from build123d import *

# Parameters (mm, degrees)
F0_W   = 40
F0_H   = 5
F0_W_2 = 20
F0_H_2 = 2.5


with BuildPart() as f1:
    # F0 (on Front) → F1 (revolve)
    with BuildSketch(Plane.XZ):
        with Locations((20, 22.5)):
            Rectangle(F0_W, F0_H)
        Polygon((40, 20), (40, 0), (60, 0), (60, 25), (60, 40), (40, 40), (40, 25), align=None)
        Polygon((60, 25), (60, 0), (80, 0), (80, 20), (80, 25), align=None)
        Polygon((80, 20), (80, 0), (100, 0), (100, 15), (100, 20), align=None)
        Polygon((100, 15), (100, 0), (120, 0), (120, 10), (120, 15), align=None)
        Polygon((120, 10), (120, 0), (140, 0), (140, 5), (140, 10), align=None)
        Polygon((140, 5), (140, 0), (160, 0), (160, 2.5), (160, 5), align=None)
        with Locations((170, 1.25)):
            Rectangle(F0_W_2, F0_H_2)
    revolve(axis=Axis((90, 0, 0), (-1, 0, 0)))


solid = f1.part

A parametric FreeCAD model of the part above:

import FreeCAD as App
import Part
import Sketcher

doc = App.newDocument("Part")
body = doc.addObject("PartDesign::Body", "Body")

# Sketch on XZ plane
sketch1 = body.newObject("Sketcher::SketchObject", "Sketch")
sketch1.AttachmentSupport = (doc.getObject("XZ_Plane"), [""])
sketch1.MapMode = "FlatFace"
sketch1.addGeometry(Part.LineSegment(App.Vector(0, 25, 0), App.Vector(0, 20, 0)), False)
sketch1.addGeometry(Part.LineSegment(App.Vector(0, 20, 0), App.Vector(40, 20, 0)), False)
sketch1.addGeometry(Part.LineSegment(App.Vector(40, 20, 0), App.Vector(40, 0, 0)), False)
sketch1.addGeometry(Part.LineSegment(App.Vector(40, 0, 0), App.Vector(180, 0, 0)), False)
sketch1.addGeometry(Part.LineSegment(App.Vector(180, 0, 0), App.Vector(180, 2.5, 0)), False)
sketch1.addGeometry(Part.LineSegment(App.Vector(180, 2.5, 0), App.Vector(160, 2.5, 0)), False)
sketch1.addGeometry(Part.LineSegment(App.Vector(160, 2.5, 0), App.Vector(160, 5, 0)), False)
sketch1.addGeometry(Part.LineSegment(App.Vector(160, 5, 0), App.Vector(140, 5, 0)), False)
sketch1.addGeometry(Part.LineSegment(App.Vector(140, 5, 0), App.Vector(140, 10, 0)), False)
sketch1.addGeometry(Part.LineSegment(App.Vector(140, 10, 0), App.Vector(120, 10, 0)), False)
sketch1.addGeometry(Part.LineSegment(App.Vector(120, 10, 0), App.Vector(120, 15, 0)), False)
sketch1.addGeometry(Part.LineSegment(App.Vector(120, 15, 0), App.Vector(100, 15, 0)), False)
sketch1.addGeometry(Part.LineSegment(App.Vector(100, 15, 0), App.Vector(100, 20, 0)), False)
sketch1.addGeometry(Part.LineSegment(App.Vector(100, 20, 0), App.Vector(80, 20, 0)), False)
sketch1.addGeometry(Part.LineSegment(App.Vector(80, 20, 0), App.Vector(80, 25, 0)), False)
sketch1.addGeometry(Part.LineSegment(App.Vector(80, 25, 0), App.Vector(60, 25, 0)), False)
sketch1.addGeometry(Part.LineSegment(App.Vector(60, 25, 0), App.Vector(60, 40, 0)), False)
sketch1.addGeometry(Part.LineSegment(App.Vector(60, 40, 0), App.Vector(40, 40, 0)), False)
sketch1.addGeometry(Part.LineSegment(App.Vector(40, 40, 0), App.Vector(40, 25, 0)), False)
sketch1.addGeometry(Part.LineSegment(App.Vector(40, 25, 0), App.Vector(0, 25, 0)), False)
sketch1.addConstraint(Sketcher.Constraint("Coincident", 0, 2, 1, 1))
sketch1.addConstraint(Sketcher.Constraint("Coincident", 1, 2, 2, 1))
sketch1.addConstraint(Sketcher.Constraint("Coincident", 2, 2, 3, 1))
sketch1.addConstraint(Sketcher.Constraint("Coincident", 3, 2, 4, 1))
sketch1.addConstraint(Sketcher.Constraint("Coincident", 4, 2, 5, 1))
sketch1.addConstraint(Sketcher.Constraint("Coincident", 5, 2, 6, 1))
sketch1.addConstraint(Sketcher.Constraint("Coincident", 6, 2, 7, 1))
sketch1.addConstraint(Sketcher.Constraint("Coincident", 7, 2, 8, 1))
sketch1.addConstraint(Sketcher.Constraint("Coincident", 8, 2, 9, 1))
sketch1.addConstraint(Sketcher.Constraint("Coincident", 9, 2, 10, 1))
sketch1.addConstraint(Sketcher.Constraint("Coincident", 10, 2, 11, 1))
sketch1.addConstraint(Sketcher.Constraint("Coincident", 11, 2, 12, 1))
sketch1.addConstraint(Sketcher.Constraint("Coincident", 12, 2, 13, 1))
sketch1.addConstraint(Sketcher.Constraint("Coincident", 13, 2, 14, 1))
sketch1.addConstraint(Sketcher.Constraint("Coincident", 14, 2, 15, 1))
sketch1.addConstraint(Sketcher.Constraint("Coincident", 15, 2, 16, 1))
sketch1.addConstraint(Sketcher.Constraint("Coincident", 16, 2, 17, 1))
sketch1.addConstraint(Sketcher.Constraint("Coincident", 17, 2, 18, 1))
sketch1.addConstraint(Sketcher.Constraint("Coincident", 18, 2, 19, 1))
sketch1.addConstraint(Sketcher.Constraint("Coincident", 19, 2, 0, 1))
sketch1.addConstraint(Sketcher.Constraint("Vertical", 0))
sketch1.addConstraint(Sketcher.Constraint("Horizontal", 1))
sketch1.addConstraint(Sketcher.Constraint("Vertical", 2))
sketch1.addConstraint(Sketcher.Constraint("Horizontal", 3))
sketch1.addConstraint(Sketcher.Constraint("Vertical", 4))
sketch1.addConstraint(Sketcher.Constraint("Horizontal", 5))
sketch1.addConstraint(Sketcher.Constraint("Vertical", 6))
sketch1.addConstraint(Sketcher.Constraint("Horizontal", 7))
sketch1.addConstraint(Sketcher.Constraint("Vertical", 8))
sketch1.addConstraint(Sketcher.Constraint("Horizontal", 9))
sketch1.addConstraint(Sketcher.Constraint("Vertical", 10))
sketch1.addConstraint(Sketcher.Constraint("Horizontal", 11))
sketch1.addConstraint(Sketcher.Constraint("Vertical", 12))
sketch1.addConstraint(Sketcher.Constraint("Horizontal", 13))
sketch1.addConstraint(Sketcher.Constraint("Vertical", 14))
sketch1.addConstraint(Sketcher.Constraint("Horizontal", 15))
sketch1.addConstraint(Sketcher.Constraint("Vertical", 16))
sketch1.addConstraint(Sketcher.Constraint("Horizontal", 17))
sketch1.addConstraint(Sketcher.Constraint("Vertical", 18))
sketch1.addConstraint(Sketcher.Constraint("Horizontal", 19))
sketch1.addConstraint(Sketcher.Constraint("PointOnObject", 0, 2, -2))
sketch1.addConstraint(Sketcher.Constraint("PointOnObject", 2, 2, -1))
sketch1.addConstraint(Sketcher.Constraint("Horizontal", 1, 2, 12, 2))
sketch1.addConstraint(Sketcher.Constraint("Horizontal", 15, 2, 18, 2))
sketch1.addConstraint(Sketcher.Constraint("Vertical", 2, 2, 17, 2))
sketch1.addConstraint(Sketcher.Constraint("Equal", 5, 7))
sketch1.addConstraint(Sketcher.Constraint("Equal", 7, 9))
sketch1.addConstraint(Sketcher.Constraint("Equal", 9, 11))
sketch1.addConstraint(Sketcher.Constraint("Equal", 11, 13))
sketch1.addConstraint(Sketcher.Constraint("Equal", 13, 15))
sketch1.addConstraint(Sketcher.Constraint("Equal", 15, 17))
sketch1.addConstraint(Sketcher.Constraint("Equal", 17, 2))
sketch1.addConstraint(Sketcher.Constraint("Equal", 4, 6))
sketch1.addConstraint(Sketcher.Constraint("Equal", 0, 8))
sketch1.addConstraint(Sketcher.Constraint("Equal", 8, 10))
sketch1.addConstraint(Sketcher.Constraint("Equal", 10, 12))
sketch1.addConstraint(Sketcher.Constraint("DistanceX", 1, 1, 1, 2, 40.0))
sketch1.addConstraint(Sketcher.Constraint("DistanceX", 3, 1, 3, 2, 140.0))
sketch1.addConstraint(Sketcher.Constraint("DistanceY", 0, 2, 0, 1, 5.0))
sketch1.addConstraint(Sketcher.Constraint("DistanceY", 16, 1, 16, 2, 15.0))
revolution = body.newObject("PartDesign::Revolution", "Revolution")
revolution.Profile = sketch1
revolution.ReferenceAxis = (sketch1, ["H_Axis"])
revolution.Angle = 360

doc.recompute()
